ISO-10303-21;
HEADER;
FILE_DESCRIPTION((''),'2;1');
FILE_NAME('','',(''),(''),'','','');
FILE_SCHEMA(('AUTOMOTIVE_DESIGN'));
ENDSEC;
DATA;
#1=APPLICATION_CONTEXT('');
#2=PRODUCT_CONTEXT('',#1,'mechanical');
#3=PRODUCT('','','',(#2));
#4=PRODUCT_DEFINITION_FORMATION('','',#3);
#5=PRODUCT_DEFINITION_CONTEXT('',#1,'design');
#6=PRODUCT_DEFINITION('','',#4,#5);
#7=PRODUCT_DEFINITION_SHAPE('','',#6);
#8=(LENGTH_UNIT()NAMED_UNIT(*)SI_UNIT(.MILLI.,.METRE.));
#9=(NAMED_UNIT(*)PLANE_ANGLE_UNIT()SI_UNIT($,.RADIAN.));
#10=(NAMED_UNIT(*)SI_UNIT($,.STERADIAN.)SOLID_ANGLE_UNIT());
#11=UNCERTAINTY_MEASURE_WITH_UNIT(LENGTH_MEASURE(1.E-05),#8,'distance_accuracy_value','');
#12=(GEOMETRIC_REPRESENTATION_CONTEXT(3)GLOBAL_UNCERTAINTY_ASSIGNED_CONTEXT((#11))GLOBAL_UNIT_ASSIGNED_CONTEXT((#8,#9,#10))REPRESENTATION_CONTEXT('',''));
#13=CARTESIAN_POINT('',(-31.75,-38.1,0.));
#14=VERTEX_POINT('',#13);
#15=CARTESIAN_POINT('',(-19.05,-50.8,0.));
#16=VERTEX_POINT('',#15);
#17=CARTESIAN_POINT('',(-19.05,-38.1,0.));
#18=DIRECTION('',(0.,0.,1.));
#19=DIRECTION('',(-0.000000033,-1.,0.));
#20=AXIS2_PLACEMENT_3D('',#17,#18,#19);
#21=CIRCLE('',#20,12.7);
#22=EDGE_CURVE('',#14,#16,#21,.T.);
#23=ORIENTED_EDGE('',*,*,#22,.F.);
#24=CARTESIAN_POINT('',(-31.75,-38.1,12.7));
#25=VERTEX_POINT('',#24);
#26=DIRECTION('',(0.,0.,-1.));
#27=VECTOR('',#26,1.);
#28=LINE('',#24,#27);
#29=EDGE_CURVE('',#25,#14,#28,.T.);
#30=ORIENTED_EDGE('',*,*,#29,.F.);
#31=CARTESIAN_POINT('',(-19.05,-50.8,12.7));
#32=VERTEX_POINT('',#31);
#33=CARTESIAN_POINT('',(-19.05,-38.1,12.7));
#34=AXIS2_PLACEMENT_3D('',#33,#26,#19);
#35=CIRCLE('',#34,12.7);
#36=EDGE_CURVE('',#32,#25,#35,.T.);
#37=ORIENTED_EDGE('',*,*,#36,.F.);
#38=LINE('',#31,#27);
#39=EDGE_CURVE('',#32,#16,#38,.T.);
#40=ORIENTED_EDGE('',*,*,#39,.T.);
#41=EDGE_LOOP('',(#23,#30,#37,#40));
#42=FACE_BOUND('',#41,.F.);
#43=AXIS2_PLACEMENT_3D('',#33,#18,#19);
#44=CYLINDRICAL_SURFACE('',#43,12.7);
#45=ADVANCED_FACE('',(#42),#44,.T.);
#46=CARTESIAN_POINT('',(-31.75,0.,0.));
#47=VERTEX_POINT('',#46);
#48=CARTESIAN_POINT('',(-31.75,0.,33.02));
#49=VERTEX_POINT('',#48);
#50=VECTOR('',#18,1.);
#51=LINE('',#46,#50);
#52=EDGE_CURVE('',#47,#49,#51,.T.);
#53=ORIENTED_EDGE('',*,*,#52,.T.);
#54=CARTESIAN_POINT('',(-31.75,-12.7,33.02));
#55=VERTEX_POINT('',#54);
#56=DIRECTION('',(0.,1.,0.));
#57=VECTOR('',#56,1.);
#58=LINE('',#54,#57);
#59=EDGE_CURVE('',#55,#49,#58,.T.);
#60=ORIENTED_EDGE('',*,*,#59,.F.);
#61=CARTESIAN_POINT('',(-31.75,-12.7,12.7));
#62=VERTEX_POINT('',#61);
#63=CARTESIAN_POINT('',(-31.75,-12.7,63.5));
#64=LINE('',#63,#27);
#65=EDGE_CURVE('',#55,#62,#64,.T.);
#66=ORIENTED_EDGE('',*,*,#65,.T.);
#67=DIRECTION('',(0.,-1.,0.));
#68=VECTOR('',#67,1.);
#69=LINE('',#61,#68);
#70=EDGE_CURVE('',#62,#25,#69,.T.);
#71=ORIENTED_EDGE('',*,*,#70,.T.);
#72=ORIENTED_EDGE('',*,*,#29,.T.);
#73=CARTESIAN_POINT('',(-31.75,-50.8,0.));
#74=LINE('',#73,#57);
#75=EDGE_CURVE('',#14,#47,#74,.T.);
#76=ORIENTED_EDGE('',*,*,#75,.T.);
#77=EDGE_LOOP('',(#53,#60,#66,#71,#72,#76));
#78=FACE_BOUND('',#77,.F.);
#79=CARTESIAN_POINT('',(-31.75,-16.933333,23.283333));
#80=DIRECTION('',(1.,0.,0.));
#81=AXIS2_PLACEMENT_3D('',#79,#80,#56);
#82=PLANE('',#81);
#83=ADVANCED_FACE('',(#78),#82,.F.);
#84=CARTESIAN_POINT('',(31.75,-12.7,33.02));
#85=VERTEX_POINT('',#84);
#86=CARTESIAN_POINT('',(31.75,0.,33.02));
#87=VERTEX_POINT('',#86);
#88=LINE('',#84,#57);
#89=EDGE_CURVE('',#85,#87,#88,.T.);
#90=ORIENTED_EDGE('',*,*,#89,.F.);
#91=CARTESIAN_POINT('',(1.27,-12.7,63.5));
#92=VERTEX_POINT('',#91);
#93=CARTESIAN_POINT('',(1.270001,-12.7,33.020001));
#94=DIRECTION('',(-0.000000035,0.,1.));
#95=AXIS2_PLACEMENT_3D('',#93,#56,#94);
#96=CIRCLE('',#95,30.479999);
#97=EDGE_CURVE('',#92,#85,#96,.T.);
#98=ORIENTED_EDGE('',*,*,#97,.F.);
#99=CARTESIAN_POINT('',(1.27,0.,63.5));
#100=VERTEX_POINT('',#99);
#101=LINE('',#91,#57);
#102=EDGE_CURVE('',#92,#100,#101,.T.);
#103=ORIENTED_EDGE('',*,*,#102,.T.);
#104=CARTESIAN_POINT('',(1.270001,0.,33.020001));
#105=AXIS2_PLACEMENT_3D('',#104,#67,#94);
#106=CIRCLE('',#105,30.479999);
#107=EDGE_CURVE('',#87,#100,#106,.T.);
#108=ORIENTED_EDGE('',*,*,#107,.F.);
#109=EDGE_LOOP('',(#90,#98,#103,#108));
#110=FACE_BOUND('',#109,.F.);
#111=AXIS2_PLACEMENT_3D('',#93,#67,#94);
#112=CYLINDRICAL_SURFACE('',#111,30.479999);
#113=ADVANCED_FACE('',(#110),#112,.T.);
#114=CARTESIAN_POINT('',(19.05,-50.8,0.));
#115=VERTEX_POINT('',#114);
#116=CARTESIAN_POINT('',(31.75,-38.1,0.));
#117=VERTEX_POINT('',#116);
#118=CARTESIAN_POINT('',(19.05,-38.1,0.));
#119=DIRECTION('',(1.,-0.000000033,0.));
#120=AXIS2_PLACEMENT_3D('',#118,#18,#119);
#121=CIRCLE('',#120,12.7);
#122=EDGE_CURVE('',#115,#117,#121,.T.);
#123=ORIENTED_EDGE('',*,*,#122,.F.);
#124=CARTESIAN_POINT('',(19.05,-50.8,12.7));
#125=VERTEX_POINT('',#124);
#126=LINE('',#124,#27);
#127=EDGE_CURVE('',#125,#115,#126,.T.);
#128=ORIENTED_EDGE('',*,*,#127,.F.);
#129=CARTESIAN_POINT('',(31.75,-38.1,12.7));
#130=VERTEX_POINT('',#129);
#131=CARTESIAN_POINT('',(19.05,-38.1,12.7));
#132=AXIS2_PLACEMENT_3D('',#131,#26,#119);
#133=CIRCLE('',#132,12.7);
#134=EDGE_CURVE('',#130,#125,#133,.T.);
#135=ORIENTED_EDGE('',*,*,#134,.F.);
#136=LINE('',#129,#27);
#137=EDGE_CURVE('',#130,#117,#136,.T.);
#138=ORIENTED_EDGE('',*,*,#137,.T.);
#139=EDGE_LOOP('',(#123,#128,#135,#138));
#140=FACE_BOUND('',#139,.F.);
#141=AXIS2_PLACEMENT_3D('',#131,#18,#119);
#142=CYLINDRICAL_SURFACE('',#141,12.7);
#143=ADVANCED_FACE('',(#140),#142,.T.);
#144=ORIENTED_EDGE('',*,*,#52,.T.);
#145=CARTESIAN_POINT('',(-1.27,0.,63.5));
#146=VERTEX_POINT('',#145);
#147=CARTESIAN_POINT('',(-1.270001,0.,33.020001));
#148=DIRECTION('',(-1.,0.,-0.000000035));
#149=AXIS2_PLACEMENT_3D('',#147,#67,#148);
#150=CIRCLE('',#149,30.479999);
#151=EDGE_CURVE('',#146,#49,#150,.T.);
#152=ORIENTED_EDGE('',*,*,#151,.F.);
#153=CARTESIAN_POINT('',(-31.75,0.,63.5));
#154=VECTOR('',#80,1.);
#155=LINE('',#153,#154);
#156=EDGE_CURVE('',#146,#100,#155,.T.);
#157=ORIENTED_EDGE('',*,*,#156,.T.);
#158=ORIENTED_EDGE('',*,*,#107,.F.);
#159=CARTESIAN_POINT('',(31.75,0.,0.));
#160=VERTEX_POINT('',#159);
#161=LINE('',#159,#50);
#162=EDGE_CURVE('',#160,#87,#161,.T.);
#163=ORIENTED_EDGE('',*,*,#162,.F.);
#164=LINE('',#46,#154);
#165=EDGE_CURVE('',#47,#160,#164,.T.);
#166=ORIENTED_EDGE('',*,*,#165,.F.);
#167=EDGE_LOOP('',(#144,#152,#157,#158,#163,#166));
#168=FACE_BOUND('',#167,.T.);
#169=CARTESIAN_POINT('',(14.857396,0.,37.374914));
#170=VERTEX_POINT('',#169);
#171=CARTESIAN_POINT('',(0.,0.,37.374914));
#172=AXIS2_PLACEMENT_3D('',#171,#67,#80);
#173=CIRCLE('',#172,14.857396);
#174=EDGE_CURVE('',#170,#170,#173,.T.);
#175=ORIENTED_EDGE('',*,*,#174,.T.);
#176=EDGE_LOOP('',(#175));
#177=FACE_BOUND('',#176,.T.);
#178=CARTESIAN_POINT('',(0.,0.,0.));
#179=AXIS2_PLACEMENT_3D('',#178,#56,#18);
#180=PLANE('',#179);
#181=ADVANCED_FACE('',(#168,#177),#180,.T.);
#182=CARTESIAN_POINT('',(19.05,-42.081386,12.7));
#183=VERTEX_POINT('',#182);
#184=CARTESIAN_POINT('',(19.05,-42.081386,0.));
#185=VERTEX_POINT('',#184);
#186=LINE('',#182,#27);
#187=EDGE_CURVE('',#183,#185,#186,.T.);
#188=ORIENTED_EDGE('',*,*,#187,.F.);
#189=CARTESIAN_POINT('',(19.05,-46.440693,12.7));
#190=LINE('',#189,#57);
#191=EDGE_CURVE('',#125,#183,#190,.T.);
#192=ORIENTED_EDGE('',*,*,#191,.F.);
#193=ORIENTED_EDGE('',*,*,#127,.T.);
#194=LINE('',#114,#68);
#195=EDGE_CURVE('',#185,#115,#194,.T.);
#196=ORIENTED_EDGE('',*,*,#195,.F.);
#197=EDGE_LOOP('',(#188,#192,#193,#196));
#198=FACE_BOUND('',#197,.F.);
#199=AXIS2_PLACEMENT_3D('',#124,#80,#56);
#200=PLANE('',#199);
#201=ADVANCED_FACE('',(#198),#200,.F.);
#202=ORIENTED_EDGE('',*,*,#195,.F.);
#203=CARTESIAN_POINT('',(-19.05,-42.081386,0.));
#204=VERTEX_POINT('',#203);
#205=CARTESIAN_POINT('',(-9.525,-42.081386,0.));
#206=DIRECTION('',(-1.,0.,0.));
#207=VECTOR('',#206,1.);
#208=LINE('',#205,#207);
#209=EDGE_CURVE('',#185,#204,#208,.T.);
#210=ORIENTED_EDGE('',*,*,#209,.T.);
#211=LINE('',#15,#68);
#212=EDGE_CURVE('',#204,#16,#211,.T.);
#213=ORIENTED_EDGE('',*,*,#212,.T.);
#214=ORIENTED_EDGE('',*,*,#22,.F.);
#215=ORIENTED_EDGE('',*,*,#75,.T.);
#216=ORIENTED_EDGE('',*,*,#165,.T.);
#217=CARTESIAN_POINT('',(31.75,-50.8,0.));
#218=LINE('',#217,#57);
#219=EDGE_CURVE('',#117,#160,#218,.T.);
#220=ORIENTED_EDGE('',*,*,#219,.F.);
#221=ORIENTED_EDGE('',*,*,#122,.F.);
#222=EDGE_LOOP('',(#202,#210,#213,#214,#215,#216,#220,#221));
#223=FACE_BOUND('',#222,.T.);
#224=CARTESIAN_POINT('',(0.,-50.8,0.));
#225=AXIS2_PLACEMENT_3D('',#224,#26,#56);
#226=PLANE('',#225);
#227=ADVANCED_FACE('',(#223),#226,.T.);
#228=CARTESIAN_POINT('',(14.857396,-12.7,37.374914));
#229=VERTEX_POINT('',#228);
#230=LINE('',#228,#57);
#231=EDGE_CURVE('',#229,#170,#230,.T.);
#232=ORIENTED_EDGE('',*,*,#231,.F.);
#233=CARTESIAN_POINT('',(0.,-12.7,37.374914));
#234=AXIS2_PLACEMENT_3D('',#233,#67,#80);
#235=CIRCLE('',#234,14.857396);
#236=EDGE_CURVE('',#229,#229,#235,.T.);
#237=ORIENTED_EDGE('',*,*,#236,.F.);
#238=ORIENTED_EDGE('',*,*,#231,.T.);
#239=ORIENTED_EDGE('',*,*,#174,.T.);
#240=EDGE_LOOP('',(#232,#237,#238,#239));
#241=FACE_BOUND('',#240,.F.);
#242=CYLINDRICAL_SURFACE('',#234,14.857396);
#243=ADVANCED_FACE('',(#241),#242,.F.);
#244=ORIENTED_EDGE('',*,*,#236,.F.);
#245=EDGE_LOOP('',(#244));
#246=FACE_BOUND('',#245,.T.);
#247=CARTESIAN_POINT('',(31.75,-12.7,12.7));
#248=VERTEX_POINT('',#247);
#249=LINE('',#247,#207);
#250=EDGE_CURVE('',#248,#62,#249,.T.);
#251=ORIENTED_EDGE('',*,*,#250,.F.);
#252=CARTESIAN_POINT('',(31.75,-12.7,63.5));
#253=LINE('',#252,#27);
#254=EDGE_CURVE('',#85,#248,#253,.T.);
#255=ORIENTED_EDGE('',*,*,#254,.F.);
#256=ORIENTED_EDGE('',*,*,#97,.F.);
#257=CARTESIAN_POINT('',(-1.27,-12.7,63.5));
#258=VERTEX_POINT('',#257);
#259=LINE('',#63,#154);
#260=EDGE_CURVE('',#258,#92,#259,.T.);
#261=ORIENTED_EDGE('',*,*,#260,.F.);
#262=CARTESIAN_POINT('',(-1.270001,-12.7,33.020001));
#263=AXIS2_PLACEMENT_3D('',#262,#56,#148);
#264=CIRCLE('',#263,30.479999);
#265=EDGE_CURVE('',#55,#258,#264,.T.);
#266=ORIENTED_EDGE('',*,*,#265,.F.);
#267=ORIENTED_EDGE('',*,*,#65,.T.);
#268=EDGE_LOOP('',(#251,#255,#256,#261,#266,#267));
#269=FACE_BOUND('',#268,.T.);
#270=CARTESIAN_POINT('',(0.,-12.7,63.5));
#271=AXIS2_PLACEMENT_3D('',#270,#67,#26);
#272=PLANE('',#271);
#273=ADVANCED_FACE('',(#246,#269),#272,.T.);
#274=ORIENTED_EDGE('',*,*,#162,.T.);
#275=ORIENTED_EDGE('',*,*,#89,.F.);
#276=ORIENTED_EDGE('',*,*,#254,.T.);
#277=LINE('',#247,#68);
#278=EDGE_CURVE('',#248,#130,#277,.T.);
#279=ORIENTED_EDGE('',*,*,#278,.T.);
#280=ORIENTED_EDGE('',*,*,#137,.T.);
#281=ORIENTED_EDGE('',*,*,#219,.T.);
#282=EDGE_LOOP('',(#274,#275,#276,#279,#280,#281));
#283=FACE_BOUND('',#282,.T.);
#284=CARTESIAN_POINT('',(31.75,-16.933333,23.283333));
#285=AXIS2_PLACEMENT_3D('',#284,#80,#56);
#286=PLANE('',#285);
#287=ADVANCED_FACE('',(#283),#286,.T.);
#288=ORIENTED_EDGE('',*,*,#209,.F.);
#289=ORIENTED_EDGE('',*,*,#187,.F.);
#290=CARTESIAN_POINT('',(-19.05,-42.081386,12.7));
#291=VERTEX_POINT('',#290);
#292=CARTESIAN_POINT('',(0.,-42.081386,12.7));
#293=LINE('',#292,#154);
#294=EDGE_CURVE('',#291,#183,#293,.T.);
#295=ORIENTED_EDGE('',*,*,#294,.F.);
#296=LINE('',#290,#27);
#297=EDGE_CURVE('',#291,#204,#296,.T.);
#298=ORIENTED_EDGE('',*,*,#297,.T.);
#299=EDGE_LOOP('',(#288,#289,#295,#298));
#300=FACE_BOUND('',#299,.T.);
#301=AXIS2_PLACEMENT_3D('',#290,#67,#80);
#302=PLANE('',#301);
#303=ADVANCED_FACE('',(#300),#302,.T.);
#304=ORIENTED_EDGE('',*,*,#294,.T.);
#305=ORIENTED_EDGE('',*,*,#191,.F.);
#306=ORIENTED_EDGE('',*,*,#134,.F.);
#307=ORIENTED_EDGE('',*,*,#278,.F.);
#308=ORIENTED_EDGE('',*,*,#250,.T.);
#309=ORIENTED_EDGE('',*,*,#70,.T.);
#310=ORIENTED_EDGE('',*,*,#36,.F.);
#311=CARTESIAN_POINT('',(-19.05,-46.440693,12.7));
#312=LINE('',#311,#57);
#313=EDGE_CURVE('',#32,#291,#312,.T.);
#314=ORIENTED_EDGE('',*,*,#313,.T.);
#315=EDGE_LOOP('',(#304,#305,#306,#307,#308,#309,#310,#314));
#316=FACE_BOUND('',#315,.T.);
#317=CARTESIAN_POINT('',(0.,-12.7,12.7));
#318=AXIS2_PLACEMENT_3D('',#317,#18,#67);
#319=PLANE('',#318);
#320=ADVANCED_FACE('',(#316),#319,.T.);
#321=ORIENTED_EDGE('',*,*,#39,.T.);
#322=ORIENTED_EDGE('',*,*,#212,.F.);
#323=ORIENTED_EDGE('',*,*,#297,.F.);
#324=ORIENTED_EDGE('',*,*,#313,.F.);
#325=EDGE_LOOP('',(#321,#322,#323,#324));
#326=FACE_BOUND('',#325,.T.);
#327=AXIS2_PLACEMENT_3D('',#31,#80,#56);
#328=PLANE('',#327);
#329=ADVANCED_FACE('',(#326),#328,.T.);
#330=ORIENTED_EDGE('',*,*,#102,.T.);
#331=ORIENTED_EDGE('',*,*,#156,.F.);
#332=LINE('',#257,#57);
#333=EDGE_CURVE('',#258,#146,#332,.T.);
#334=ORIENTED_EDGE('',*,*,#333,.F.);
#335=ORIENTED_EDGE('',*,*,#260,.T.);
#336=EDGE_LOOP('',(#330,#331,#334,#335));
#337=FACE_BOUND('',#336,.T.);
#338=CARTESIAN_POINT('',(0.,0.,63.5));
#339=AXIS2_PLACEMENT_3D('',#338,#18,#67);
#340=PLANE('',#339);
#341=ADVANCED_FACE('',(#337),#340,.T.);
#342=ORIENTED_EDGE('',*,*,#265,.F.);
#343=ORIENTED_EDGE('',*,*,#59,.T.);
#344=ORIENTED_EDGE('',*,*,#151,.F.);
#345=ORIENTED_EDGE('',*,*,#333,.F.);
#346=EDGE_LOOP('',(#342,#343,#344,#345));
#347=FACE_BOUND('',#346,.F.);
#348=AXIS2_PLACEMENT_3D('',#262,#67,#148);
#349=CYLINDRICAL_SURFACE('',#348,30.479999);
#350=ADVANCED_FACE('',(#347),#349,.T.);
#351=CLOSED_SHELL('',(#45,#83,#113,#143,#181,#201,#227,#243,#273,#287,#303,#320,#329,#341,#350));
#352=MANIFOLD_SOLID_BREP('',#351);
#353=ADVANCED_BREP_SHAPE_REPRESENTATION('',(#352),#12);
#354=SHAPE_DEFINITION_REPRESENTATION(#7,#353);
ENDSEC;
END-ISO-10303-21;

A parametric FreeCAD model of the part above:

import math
import FreeCAD as App
import Part
import Sketcher
Q = App.Units.Quantity


def add_polygon(sketch, points):
    """Adds a closed chain of lines whose ends are joined by coincident constraints."""
    first, n = sketch.GeometryCount, len(points)
    for a, b in zip(points, points[1:] + points[:1]):
        sketch.addGeometry(Part.LineSegment(App.Vector(*a, 0), App.Vector(*b, 0)), False)
    for i in range(n):
        sketch.addConstraint(Sketcher.Constraint("Coincident", first + i, 2, first + (i + 1) % n, 1))

doc = App.newDocument("Part")
body = doc.addObject("PartDesign::Body", "Body")

# Sketch on YZ plane
sketch1 = body.newObject("Sketcher::SketchObject", "Sketch")
sketch1.AttachmentSupport = (doc.getObject("YZ_Plane"), [""])
sketch1.MapMode = "FlatFace"
add_polygon(sketch1, [(-51, 0), (0, 0), (0, 64), (-13, 64), (-13, 13), (-51, 13)])  # lines 0-5
sketch1.addConstraint([
    Sketcher.Constraint("Horizontal", 0),
    Sketcher.Constraint("Vertical", 1),
    Sketcher.Constraint("Horizontal", 2),
    Sketcher.Constraint("Vertical", 3),
    Sketcher.Constraint("Horizontal", 4),
    Sketcher.Constraint("Vertical", 5),
    Sketcher.Constraint("Coincident", 0, 2, -1, 1),
    Sketcher.Constraint("Equal", 0, 3),
    Sketcher.Constraint("Equal", 2, 5),
    Sketcher.Constraint("DistanceX", 0, 1, 0, 2, Q("2 in")),
    Sketcher.Constraint("DistanceX", 2, 2, 2, 1, Q("0.5 in")),
])
pad1 = body.newObject("PartDesign::Pad", "Pad")
pad1.Profile = sketch1
pad1.Length = Q("2.5 in")
pad1.Midplane = True

# Sketch on XY plane
sketch2 = body.newObject("Sketcher::SketchObject", "Sketch001")
sketch2.AttachmentSupport = (doc.getObject("XY_Plane"), [""])
sketch2.MapMode = "FlatFace"
sketch2.AttachmentOffset = App.Placement(App.Vector(0, 0, 0.5 * 25.4), App.Rotation())
sketch2.addGeometry([
    Part.ArcOfCircle(Part.Circle(App.Vector(-19, -38, 0), App.Vector(0, 0, 1), 13), math.radians(-180), math.radians(-90)),  # 0
    Part.LineSegment(App.Vector(-32, -38, 0), App.Vector(-32, -51, 0)),  # 1
    Part.LineSegment(App.Vector(-32, -51, 0), App.Vector(-19, -51, 0)),  # 2
    Part.LineSegment(App.Vector(32, -51, 0), App.Vector(32, -38, 0)),  # 3
    Part.ArcOfCircle(Part.Circle(App.Vector(19, -38, 0), App.Vector(0, 0, 1), 13), math.radians(-90), math.radians(0)),  # 4
    Part.LineSegment(App.Vector(19, -51, 0), App.Vector(32, -51, 0)),  # 5
], False)
sketch2.addConstraint([
    Sketcher.Constraint("Tangent", 0, 1, 1, 1),
    Sketcher.Constraint("Coincident", 1, 2, 2, 1),
    Sketcher.Constraint("Tangent", 2, 2, 0, 2),
    Sketcher.Constraint("Tangent", 3, 2, 4, 2),
    Sketcher.Constraint("Tangent", 4, 1, 5, 1),
    Sketcher.Constraint("Coincident", 5, 2, 3, 1),
    Sketcher.Constraint("Vertical", 1),
    Sketcher.Constraint("Horizontal", 2),
    Sketcher.Constraint("Vertical", 3),
    Sketcher.Constraint("Horizontal", 5),
    Sketcher.Constraint("Equal", 0, 4),
    Sketcher.Constraint("Symmetric", 0, 3, 4, 3, -2),
    Sketcher.Constraint("Radius", 0, Q("0.5 in")),
    Sketcher.Constraint("DistanceY", 1, 2, -1, 1, Q("2 in")),
    Sketcher.Constraint("DistanceX", 0, 1, 4, 3, Q("2 in")),
])
pocket1 = body.newObject("PartDesign::Pocket", "Pocket")
pocket1.Profile = sketch2
pocket1.Length = Q("1 in")

# Sketch on XY plane
sketch3 = body.newObject("Sketcher::SketchObject", "Sketch002")
sketch3.AttachmentSupport = (doc.getObject("XY_Plane"), [""])
sketch3.MapMode = "FlatFace"
sketch3.AttachmentOffset = App.Placement(App.Vector(0, 0, 0.5 * 25.4), App.Rotation())
add_polygon(sketch3, [(-19, -42), (-19, -51), (19, -51), (19, -42)])  # lines 0-3
sketch3.addConstraint([
    Sketcher.Constraint("Vertical", 0),
    Sketcher.Constraint("Horizontal", 1),
    Sketcher.Constraint("Vertical", 2),
    Sketcher.Constraint("Horizontal", 3),
    Sketcher.Constraint("DistanceX", 1, 1, 1, 2, Q("1.5 in")),
    Sketcher.Constraint("DistanceY", 0, 2, -1, 1, Q("2 in")),
    Sketcher.Constraint("DistanceX", 0, 2, -1, 1, Q("0.75 in")),
    Sketcher.Constraint("DistanceY", 0, 2, 0, 1, Q("8.718614 mm")),
])
pocket2 = body.newObject("PartDesign::Pocket", "Pocket001")
pocket2.Profile = sketch3
pocket2.Length = Q("1 in")

# Sketch on XZ plane
sketch4 = body.newObject("Sketcher::SketchObject", "Sketch003")
sketch4.AttachmentSupport = (doc.getObject("XZ_Plane"), [""])
sketch4.MapMode = "FlatFace"
sketch4.AttachmentOffset = App.Placement(App.Vector(0, 0, 0.5 * 25.4), App.Rotation())
sketch4.addGeometry([
    Part.LineSegment(App.Vector(-32, 64, 0), App.Vector(-32, 33, 0)),  # 0
    Part.ArcOfCircle(Part.Circle(App.Vector(-1, 33, 0), App.Vector(0, 0, 1), 30), math.radians(90), math.radians(180)),  # 1
    Part.LineSegment(App.Vector(-1, 64, 0), App.Vector(-32, 64, 0)),  # 2
    Part.LineSegment(App.Vector(32, 64, 0), App.Vector(1, 64, 0)),  # 3
    Part.ArcOfCircle(Part.Circle(App.Vector(1, 33, 0), App.Vector(0, 0, 1), 30), math.radians(0), math.radians(90)),  # 4
    Part.LineSegment(App.Vector(32, 33, 0), App.Vector(32, 64, 0)),  # 5
    Part.Circle(App.Vector(0, 37, 0), App.Vector(0, 0, 1), 15),  # 6
], False)
sketch4.addConstraint([
    Sketcher.Constraint("Tangent", 0, 2, 1, 2),
    Sketcher.Constraint("Tangent", 1, 1, 2, 1),
    Sketcher.Constraint("Coincident", 2, 2, 0, 1),
    Sketcher.Constraint("Tangent", 3, 2, 4, 2),
    Sketcher.Constraint("Tangent", 4, 1, 5, 1),
    Sketcher.Constraint("Coincident", 5, 2, 3, 1),
    Sketcher.Constraint("Vertical", 0),
    Sketcher.Constraint("Horizontal", 2),
    Sketcher.Constraint("Horizontal", 3),
    Sketcher.Constraint("Vertical", 5),
    Sketcher.Constraint("Equal", 1, 4),
    Sketcher.Constraint("Symmetric", 1, 3, 4, 3, -2),
    Sketcher.Constraint("PointOnObject", 6, 3, -2),
    Sketcher.Constraint("Radius", 1, Q("1.2 in")),
    Sketcher.Constraint("DistanceY", -1, 1, 1, 3, Q("1.3 in")),
    Sketcher.Constraint("DistanceX", 1, 3, 4, 3, Q("0.1000001 in")),
    Sketcher.Constraint("Diameter", 6, Q("29.714792 mm")),
    Sketcher.Constraint("DistanceY", -1, 1, 6, 3, Q("37.374914 mm")),
])
pocket3 = body.newObject("PartDesign::Pocket", "Pocket002")
pocket3.Profile = sketch4
pocket3.Length = Q("1 in")

doc.recompute()
